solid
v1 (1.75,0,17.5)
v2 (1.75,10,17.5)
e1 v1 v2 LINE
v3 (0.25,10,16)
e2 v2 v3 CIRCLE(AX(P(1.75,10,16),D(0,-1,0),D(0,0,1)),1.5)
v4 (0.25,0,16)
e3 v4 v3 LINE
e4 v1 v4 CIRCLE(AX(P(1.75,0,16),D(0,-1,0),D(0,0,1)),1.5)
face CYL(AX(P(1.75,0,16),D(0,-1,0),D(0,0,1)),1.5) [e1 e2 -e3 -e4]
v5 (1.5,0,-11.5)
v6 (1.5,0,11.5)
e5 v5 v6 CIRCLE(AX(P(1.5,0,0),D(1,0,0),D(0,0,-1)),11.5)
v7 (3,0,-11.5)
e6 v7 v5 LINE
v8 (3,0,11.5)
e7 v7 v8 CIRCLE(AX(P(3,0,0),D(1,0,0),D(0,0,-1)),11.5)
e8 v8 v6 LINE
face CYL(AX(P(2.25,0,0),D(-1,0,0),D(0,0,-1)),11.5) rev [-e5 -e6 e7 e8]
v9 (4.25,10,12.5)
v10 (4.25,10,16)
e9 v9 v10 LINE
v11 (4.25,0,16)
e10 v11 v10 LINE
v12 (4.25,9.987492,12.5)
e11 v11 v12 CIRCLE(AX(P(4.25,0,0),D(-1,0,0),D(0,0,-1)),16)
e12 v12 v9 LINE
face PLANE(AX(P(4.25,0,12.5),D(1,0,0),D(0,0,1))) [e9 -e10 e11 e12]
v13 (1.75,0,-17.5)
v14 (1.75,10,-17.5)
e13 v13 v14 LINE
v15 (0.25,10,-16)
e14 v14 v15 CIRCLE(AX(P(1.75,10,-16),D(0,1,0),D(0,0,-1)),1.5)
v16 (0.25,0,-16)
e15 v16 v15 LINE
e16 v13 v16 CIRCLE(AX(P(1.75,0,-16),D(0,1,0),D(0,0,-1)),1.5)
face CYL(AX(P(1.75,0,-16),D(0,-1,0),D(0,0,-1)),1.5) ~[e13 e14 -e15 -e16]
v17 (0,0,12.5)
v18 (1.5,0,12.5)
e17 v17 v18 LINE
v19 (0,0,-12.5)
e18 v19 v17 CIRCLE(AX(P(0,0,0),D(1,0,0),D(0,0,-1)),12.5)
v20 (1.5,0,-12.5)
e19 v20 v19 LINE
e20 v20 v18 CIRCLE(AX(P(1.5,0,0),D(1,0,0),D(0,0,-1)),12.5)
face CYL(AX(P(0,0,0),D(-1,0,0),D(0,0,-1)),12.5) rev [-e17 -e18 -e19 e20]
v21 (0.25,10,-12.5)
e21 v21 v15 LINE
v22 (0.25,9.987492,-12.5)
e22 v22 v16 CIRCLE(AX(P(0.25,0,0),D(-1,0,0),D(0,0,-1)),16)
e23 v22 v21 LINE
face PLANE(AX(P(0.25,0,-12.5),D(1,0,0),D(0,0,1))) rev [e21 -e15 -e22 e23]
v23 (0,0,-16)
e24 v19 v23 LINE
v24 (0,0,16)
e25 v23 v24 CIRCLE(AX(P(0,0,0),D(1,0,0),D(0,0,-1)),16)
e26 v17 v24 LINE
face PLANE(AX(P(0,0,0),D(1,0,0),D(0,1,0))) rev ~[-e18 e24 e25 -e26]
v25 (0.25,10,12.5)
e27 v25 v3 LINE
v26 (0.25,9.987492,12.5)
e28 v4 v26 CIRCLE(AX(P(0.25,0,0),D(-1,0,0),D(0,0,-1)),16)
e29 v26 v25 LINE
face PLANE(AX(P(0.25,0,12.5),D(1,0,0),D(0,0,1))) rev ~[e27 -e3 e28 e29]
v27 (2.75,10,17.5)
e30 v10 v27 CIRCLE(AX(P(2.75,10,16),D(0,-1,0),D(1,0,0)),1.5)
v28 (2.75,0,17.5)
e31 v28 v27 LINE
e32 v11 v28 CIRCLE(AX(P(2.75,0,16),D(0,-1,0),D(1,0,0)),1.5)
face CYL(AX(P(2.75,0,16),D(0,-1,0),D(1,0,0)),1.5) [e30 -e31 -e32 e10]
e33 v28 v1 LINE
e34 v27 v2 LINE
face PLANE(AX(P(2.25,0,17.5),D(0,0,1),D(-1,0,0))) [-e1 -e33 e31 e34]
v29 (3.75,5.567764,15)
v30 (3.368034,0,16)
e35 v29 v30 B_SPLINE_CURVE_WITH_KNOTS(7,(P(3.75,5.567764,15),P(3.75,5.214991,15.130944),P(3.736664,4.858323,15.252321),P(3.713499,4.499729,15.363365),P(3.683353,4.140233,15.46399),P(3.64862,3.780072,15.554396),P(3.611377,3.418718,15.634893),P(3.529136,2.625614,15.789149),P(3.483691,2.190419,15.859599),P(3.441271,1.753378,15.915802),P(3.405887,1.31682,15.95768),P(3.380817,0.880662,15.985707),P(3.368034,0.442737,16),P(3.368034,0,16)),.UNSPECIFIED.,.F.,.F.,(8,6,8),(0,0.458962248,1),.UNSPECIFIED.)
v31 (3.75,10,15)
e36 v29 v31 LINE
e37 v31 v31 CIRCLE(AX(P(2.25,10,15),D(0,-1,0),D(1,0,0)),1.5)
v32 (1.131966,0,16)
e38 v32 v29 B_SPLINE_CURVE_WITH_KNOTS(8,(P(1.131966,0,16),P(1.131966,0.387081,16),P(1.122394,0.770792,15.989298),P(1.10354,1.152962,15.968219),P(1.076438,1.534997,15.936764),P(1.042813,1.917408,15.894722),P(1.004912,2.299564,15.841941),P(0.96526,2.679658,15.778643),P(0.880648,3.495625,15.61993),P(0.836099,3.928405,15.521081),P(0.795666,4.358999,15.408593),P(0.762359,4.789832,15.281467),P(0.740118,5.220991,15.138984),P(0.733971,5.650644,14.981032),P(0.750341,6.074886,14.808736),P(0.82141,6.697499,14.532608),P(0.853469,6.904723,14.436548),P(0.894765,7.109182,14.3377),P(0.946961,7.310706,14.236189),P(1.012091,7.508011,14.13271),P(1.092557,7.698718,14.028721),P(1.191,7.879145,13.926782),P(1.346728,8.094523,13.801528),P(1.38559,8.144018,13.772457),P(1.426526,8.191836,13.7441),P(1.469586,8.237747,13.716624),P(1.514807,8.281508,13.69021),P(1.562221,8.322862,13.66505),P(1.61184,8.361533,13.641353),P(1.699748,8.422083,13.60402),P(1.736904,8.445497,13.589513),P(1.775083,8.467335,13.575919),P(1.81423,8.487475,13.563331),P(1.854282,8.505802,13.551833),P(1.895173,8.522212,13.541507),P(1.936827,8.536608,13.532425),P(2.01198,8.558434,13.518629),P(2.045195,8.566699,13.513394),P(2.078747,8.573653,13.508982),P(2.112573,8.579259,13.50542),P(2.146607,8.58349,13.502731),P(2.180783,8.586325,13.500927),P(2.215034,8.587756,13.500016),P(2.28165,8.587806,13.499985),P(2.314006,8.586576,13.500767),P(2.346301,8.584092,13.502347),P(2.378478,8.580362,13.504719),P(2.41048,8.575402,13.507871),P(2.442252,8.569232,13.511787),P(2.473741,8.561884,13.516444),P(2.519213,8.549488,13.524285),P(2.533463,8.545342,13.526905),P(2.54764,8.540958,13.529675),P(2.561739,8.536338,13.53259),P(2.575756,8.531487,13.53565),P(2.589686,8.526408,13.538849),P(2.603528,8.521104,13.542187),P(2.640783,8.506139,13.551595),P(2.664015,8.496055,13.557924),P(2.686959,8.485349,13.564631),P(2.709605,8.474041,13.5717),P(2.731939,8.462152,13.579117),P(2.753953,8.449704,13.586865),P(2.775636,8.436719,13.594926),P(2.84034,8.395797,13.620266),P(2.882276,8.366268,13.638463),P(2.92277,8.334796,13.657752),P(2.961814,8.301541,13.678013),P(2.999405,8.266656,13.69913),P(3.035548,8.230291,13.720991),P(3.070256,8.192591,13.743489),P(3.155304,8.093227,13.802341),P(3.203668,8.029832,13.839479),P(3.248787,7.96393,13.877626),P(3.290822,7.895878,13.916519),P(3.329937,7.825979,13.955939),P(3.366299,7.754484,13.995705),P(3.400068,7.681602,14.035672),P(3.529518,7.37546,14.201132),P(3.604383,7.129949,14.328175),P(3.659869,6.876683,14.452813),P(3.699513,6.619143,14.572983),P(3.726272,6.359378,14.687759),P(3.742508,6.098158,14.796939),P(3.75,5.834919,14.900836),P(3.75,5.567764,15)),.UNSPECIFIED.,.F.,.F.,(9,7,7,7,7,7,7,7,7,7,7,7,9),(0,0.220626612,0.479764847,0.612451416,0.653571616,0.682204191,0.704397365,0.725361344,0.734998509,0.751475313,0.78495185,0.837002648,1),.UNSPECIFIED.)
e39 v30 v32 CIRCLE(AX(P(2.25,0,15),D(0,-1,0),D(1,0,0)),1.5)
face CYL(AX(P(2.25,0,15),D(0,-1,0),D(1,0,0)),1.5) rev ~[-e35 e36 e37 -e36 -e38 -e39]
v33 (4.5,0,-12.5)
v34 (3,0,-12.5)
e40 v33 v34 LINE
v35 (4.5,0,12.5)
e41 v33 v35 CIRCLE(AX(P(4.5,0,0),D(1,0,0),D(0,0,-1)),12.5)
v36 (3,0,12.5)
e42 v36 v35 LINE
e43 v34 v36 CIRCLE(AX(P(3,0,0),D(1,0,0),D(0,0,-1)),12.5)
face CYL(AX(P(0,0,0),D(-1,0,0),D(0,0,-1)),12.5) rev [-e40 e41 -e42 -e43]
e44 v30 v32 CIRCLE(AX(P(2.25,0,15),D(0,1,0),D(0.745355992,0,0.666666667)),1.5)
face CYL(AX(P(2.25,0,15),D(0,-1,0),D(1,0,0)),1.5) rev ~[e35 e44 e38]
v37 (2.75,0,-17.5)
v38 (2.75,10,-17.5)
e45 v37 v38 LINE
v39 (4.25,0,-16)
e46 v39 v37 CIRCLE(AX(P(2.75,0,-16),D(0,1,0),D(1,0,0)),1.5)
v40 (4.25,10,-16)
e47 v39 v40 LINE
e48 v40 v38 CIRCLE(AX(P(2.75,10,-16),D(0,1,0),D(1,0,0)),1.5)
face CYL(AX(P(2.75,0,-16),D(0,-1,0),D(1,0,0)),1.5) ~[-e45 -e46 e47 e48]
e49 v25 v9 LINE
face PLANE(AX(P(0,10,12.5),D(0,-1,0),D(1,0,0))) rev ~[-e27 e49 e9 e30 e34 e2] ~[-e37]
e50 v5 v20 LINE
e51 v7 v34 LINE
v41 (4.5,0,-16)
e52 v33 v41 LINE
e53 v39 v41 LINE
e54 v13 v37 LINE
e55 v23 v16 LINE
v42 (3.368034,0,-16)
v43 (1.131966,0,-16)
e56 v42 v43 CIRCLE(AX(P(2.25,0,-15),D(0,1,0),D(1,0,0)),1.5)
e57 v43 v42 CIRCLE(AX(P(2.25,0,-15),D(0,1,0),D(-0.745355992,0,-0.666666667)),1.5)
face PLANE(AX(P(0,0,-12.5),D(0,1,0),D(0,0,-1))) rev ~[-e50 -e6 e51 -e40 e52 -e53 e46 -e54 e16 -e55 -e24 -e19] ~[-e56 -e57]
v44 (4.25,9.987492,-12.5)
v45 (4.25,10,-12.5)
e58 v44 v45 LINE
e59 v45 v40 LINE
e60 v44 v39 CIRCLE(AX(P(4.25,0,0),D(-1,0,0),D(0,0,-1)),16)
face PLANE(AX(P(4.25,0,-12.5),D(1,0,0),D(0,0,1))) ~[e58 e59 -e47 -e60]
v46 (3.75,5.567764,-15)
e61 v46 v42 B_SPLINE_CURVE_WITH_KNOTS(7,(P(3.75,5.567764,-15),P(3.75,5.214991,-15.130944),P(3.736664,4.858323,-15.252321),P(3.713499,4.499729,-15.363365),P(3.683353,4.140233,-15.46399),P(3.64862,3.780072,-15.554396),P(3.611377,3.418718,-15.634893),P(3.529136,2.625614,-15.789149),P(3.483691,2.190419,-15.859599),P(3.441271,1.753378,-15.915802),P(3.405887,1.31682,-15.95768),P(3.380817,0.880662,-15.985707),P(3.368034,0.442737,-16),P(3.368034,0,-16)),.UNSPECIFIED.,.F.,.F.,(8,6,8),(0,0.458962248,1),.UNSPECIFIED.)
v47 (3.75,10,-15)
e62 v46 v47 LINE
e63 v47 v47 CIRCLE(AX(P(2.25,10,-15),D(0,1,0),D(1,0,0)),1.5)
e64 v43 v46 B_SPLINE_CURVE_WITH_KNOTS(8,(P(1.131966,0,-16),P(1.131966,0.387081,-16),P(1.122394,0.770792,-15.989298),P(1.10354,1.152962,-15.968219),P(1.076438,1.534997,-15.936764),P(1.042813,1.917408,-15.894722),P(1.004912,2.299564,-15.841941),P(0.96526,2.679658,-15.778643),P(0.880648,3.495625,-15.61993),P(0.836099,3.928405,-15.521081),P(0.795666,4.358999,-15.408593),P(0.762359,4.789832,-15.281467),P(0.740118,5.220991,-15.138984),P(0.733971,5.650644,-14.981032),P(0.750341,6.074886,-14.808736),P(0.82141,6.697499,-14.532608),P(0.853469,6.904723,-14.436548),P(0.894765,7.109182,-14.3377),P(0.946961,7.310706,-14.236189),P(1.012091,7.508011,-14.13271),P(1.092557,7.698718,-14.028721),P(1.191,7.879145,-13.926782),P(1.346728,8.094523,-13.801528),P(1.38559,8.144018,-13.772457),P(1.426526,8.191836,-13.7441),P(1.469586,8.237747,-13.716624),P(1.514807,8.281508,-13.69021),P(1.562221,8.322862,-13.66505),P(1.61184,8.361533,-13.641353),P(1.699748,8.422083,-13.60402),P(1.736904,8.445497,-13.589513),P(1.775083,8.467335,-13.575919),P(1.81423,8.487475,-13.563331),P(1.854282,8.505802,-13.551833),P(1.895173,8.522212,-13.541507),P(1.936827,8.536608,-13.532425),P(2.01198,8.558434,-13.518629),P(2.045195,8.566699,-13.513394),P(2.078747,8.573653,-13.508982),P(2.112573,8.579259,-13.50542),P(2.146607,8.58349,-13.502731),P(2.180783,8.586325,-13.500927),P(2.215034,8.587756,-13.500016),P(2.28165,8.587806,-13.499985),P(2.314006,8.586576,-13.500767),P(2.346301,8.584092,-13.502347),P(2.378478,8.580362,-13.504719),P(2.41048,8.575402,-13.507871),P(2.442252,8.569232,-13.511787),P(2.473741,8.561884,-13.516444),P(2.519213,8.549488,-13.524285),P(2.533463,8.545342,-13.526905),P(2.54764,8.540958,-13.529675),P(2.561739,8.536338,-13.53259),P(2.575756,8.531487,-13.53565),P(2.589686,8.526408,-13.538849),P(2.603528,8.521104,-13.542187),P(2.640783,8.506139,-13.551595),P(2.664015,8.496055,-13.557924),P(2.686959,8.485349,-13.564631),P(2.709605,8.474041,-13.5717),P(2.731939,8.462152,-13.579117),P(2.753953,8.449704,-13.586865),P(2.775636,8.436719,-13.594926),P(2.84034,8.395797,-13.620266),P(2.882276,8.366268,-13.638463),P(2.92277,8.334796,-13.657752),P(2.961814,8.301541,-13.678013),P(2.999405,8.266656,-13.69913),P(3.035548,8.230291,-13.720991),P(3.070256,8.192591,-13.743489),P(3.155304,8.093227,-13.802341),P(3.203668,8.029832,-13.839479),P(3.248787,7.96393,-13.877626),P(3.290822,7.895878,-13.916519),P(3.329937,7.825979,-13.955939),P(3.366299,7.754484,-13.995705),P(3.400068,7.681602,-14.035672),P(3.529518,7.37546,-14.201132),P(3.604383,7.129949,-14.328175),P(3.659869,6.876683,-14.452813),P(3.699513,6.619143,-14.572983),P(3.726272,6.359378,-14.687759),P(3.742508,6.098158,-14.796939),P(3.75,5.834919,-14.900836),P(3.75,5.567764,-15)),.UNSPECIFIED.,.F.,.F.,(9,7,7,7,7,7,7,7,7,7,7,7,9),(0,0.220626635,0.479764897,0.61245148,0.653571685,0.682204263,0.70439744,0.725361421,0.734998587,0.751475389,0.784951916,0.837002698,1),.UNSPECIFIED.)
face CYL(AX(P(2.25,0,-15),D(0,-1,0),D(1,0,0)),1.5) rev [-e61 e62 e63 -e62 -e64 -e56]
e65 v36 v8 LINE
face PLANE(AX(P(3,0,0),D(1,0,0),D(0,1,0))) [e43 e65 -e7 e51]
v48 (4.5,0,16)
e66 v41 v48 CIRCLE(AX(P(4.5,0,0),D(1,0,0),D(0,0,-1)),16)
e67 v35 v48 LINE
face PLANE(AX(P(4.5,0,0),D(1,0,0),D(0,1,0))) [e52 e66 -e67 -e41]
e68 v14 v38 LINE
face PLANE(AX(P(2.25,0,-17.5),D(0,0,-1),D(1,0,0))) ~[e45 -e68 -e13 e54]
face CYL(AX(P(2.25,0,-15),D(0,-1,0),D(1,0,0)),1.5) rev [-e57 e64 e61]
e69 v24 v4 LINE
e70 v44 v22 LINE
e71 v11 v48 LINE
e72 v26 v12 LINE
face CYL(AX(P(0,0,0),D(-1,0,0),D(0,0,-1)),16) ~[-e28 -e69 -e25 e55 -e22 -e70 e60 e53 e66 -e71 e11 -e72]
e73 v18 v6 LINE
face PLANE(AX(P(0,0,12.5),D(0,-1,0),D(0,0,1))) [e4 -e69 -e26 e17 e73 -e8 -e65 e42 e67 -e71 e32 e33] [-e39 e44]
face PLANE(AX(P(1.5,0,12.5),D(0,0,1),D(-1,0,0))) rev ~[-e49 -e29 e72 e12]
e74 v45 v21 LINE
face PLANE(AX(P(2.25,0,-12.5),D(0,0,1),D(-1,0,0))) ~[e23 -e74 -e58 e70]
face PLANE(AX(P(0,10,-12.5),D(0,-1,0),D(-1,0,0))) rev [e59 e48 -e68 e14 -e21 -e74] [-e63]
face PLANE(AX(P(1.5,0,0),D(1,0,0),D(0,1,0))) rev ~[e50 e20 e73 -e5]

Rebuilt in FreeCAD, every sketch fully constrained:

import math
import FreeCAD as App
import Part
import Sketcher

V = App.Vector
Q = App.Units.Quantity

doc = App.newDocument("Part")
params = doc.addObject("Spreadsheet::Sheet", "Params")
for row, (alias, value) in enumerate([
    ("sketch1_radius", "16 mm"),
    ("sketch1_radius2", "12.5 mm"),
    ("pad1_length", "4.5 mm"),
    ("sketch2_radius", "11.5 mm"),
    ("sketch2_radius2", "12.5 mm"),
    ("pad2_length", "1.5 mm"),
    ("sketch3_diameter", "3 mm"),
    ("sketch3_width", "4 mm"),
    ("pad3_length", "10 mm"),
    ("sketch4_diameter", "3 mm"),
    ("pocket1_length", "1000 mm"),
], start=1):
    params.set(f"A{row}", alias)
    params.set(f"B{row}", "=" + value)
    params.setAlias(f"B{row}", alias)

body = doc.addObject("PartDesign::Body", "Body")

sketch1 = body.newObject("Sketcher::SketchObject", "Sketch")
sketch1.AttachmentSupport = (doc.getObject("YZ_Plane"), [""])
sketch1.MapMode = "FlatFace"
sketch1.addGeometry([
    Part.LineSegment(V(0, -12.5, 0), V(0, -16, 0)),
    Part.ArcOfCircle(Part.Circle(V(0, 0, 0), V(0, 0, 1), 16), math.radians(-90), math.radians(90)),
    Part.LineSegment(V(0, 16, 0), V(0, 12.5, 0)),
    Part.ArcOfCircle(Part.Circle(V(0, 0, 0), V(0, 0, 1), 12.5), math.radians(-90), math.radians(90)),
], False)
sketch1.addConstraint([
    Sketcher.Constraint("Coincident", 0, 2, 1, 1),
    Sketcher.Constraint("Coincident", 1, 2, 2, 1),
    Sketcher.Constraint("Coincident", 2, 2, 3, 2),
    Sketcher.Constraint("Coincident", 3, 1, 0, 1),
    Sketcher.Constraint("Vertical", 0),
    Sketcher.Constraint("Vertical", 2),
    Sketcher.Constraint("Coincident", 1, 3, -1, 1),
    Sketcher.Constraint("Coincident", 3, 3, -1, 1),
    Sketcher.Constraint("PointOnObject", 0, 2, -2),
    Sketcher.Constraint("PointOnObject", 1, 2, -2),
    Sketcher.Constraint("Radius", 1, Q("16 mm")),
    Sketcher.Constraint("Radius", 3, Q("12.5 mm")),
])
sketch1.setExpression("Constraints[10]", "Params.sketch1_radius")
sketch1.setExpression("Constraints[11]", "Params.sketch1_radius2")
pad1 = body.newObject("PartDesign::Pad", "Pad")
pad1.Profile = sketch1
pad1.setExpression("Length", "Params.pad1_length")

sketch2 = body.newObject("Sketcher::SketchObject", "Sketch001")
sketch2.AttachmentSupport = (doc.getObject("YZ_Plane"), [""])
sketch2.MapMode = "FlatFace"
sketch2.AttachmentOffset = App.Placement(V(0, 0, 2.25), App.Rotation())
sketch2.addGeometry([
    Part.LineSegment(V(0, -11.5, 0), V(0, -12.5, 0)),
    Part.ArcOfCircle(Part.Circle(V(0, 0, 0), V(0, 0, 1), 12.5), math.radians(-90), math.radians(90)),
    Part.LineSegment(V(0, 12.5, 0), V(0, 11.5, 0)),
    Part.ArcOfCircle(Part.Circle(V(0, 0, 0), V(0, 0, 1), 11.5), math.radians(-90), math.radians(90)),
], False)
sketch2.addConstraint([
    Sketcher.Constraint("Coincident", 0, 2, 1, 1),
    Sketcher.Constraint("Coincident", 1, 2, 2, 1),
    Sketcher.Constraint("Coincident", 2, 2, 3, 2),
    Sketcher.Constraint("Coincident", 3, 1, 0, 1),
    Sketcher.Constraint("Vertical", 0),
    Sketcher.Constraint("Vertical", 2),
    Sketcher.Constraint("Coincident", 1, 3, -1, 1),
    Sketcher.Constraint("Coincident", 3, 3, -1, 1),
    Sketcher.Constraint("PointOnObject", 0, 2, -2),
    Sketcher.Constraint("PointOnObject", 1, 2, -2),
    Sketcher.Constraint("Radius", 3, Q("11.5 mm")),
    Sketcher.Constraint("Radius", 1, Q("12.5 mm")),
])
sketch2.setExpression("Constraints[10]", "Params.sketch2_radius")
sketch2.setExpression("Constraints[11]", "Params.sketch2_radius2")
pad2 = body.newObject("PartDesign::Pad", "Pad001")
pad2.Profile = sketch2
pad2.setExpression("Length", "Params.pad2_length")
pad2.Midplane = True

sketch3 = body.newObject("Sketcher::SketchObject", "Sketch002")
sketch3.AttachmentSupport = (doc.getObject("XZ_Plane"), [""])
sketch3.MapMode = "FlatFace"
sketch3.addGeometry([
    Part.LineSegment(V(0.2, 12.5, 0), V(4.2, 12.5, 0)),
    Part.LineSegment(V(4.2, 12.5, 0), V(4.2, 16, 0)),
    Part.ArcOfCircle(Part.Circle(V(2.8, 16, 0), V(0, 0, 1), 1.5), math.radians(0), math.radians(90)),
    Part.LineSegment(V(2.8, 17.5, 0), V(1.8, 17.5, 0)),
    Part.ArcOfCircle(Part.Circle(V(1.8, 16, 0), V(0, 0, 1), 1.5), math.radians(90), math.radians(180)),
    Part.LineSegment(V(0.2, 16, 0), V(0.2, 12.5, 0)),
    Part.Circle(V(2.2, 15, 0), V(0, 0, 1), 1.5),
], False)
sketch3.addConstraint([
    Sketcher.Constraint("Coincident", 0, 2, 1, 1),
    Sketcher.Constraint("Tangent", 1, 2, 2, 1),
    Sketcher.Constraint("Tangent", 2, 2, 3, 1),
    Sketcher.Constraint("Tangent", 3, 2, 4, 1),
    Sketcher.Constraint("Tangent", 4, 2, 5, 1),
    Sketcher.Constraint("Coincident", 5, 2, 0, 1),
    Sketcher.Constraint("Horizontal", 0),
    Sketcher.Constraint("Vertical", 1),
    Sketcher.Constraint("Horizontal", 3),
    Sketcher.Constraint("Vertical", 5),
    Sketcher.Constraint("Equal", 2, 4),
    Sketcher.Constraint("Equal", 4, 6),
    Sketcher.Constraint("Diameter", 6, Q("3 mm")),
    Sketcher.Constraint("DistanceX", 0, 1, 0, 2, Q("4 mm")),
    Sketcher.Constraint("DistanceY", 6, 3, 2, 3, Q("1 mm")),
    Sketcher.Constraint("DistanceX", 6, 3, 0, 2, Q("2 mm")),
    Sketcher.Constraint("DistanceY", 0, 2, 2, 2, Q("5 mm")),
    Sketcher.Constraint("DistanceY", -1, 1, 2, 3, Q("16 mm")),
    Sketcher.Constraint("DistanceX", -1, 1, 2, 3, Q("2.75 mm")),
])
sketch3.setExpression("Constraints[12]", "Params.sketch3_diameter")
sketch3.setExpression("Constraints[13]", "Params.sketch3_width")
pad3 = body.newObject("PartDesign::Pad", "Pad002")
pad3.Profile = sketch3
pad3.setExpression("Length", "Params.pad3_length")
pad3.Reversed = True

sketch4 = body.newObject("Sketcher::SketchObject", "Sketch003")
sketch4.AttachmentSupport = (doc.getObject("XZ_Plane"), [""])
sketch4.MapMode = "FlatFace"
sketch4.addGeometry(Part.Circle(V(2.2, 15, 0), V(0, 0, 1), 1.5), False)
sketch4.addConstraint([
    Sketcher.Constraint("Diameter", 0, Q("3 mm")),
    Sketcher.Constraint("DistanceY", -1, 1, 0, 3, Q("15 mm")),
    Sketcher.Constraint("DistanceX", -1, 1, 0, 3, Q("2.25 mm")),
])
sketch4.setExpression("Constraints[0]", "Params.sketch4_diameter")
pocket1 = body.newObject("PartDesign::Pocket", "Pocket")
pocket1.Profile = sketch4
pocket1.setExpression("Length", "Params.pocket1_length")
doc.recompute()

mirrored = body.newObject("PartDesign::Mirrored", "Mirrored")
mirrored.Originals = [pad3, pocket1]
mirrored.MirrorPlane = (doc.getObject("XY_Plane"), [""])
body.Tip = mirrored

doc.recompute()
